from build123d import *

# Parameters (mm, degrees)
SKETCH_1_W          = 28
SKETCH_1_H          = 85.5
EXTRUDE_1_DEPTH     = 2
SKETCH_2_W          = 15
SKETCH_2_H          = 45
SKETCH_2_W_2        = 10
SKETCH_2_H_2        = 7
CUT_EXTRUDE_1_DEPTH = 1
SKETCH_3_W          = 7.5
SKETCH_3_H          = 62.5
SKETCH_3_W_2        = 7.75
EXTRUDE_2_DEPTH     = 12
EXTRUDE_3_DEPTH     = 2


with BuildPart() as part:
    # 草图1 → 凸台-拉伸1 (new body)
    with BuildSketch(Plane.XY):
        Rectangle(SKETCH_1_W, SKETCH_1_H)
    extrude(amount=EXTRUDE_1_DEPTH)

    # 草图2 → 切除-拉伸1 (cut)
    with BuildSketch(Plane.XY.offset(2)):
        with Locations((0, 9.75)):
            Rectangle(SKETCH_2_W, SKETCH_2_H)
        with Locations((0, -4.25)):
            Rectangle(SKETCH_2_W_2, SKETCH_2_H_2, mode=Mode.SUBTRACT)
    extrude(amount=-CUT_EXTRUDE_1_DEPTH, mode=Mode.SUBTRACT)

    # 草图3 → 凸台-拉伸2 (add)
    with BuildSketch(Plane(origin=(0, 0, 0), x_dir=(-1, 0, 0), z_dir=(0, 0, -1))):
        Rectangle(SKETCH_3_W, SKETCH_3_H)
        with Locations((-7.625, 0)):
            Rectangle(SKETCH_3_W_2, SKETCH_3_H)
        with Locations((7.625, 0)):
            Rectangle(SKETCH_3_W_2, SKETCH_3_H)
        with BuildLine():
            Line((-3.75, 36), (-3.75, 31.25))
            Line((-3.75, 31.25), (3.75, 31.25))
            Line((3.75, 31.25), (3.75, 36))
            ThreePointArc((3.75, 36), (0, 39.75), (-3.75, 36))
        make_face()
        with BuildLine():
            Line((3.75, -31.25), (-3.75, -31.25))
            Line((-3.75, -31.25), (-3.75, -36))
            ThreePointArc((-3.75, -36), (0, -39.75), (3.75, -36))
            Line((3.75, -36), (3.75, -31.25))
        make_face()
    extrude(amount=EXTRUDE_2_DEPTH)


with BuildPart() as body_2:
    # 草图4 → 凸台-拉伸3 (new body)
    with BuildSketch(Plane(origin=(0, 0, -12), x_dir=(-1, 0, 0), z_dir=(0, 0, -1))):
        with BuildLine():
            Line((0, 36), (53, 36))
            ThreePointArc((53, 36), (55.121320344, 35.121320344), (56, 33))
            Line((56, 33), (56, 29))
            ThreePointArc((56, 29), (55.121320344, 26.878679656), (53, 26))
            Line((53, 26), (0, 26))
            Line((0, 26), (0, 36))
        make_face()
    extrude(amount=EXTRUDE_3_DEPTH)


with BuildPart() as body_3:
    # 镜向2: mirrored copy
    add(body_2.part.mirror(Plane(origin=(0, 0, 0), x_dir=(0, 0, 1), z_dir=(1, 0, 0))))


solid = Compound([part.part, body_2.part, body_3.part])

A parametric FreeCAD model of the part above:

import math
import FreeCAD as App
import Part
import Sketcher

V = App.Vector


def add_polygon(sketch, points):
    """Adds a closed chain of lines whose ends are joined by coincident constraints."""
    first, n = sketch.GeometryCount, len(points)
    for a, b in zip(points, points[1:] + points[:1]):
        sketch.addGeometry(Part.LineSegment(App.Vector(*a, 0), App.Vector(*b, 0)), False)
    for i in range(n):
        sketch.addConstraint(Sketcher.Constraint("Coincident", first + i, 2, first + (i + 1) % n, 1))

doc = App.newDocument("Part")
params = doc.addObject("Spreadsheet::Sheet", "Params")
for row, (alias, value) in enumerate([
    ("sketch1_width", "28 mm"),
    ("sketch1_height", "85.5 mm"),
    ("pad1_length", "2 mm"),
    ("sketch2_width", "15 mm"),
    ("sketch2_width2", "10 mm"),
    ("sketch2_height", "45 mm"),
    ("sketch2_height2", "7 mm"),
    ("pocket1_length", "1 mm"),
    ("sketch3_radius", "3.75 mm"),
    ("sketch3_height", "62.5 mm"),
    ("pad2_length", "12 mm"),
    ("sketch4_radius", "3 mm"),
    ("sketch4_width", "53 mm"),
    ("sketch4_height", "10 mm"),
    ("pad3_length", "2 mm"),
], start=1):
    params.set(f"A{row}", alias)
    params.set(f"B{row}", "=" + value)
    params.setAlias(f"B{row}", alias)

body = doc.addObject("PartDesign::Body", "Body")

# Sketch on XY plane
sketch1 = body.newObject("Sketcher::SketchObject", "Sketch")
sketch1.AttachmentSupport = (doc.getObject("XY_Plane"), [""])
sketch1.MapMode = "FlatFace"
add_polygon(sketch1, [(-14, 43), (-14, -43), (14, -43), (14, 43)])  # lines 0-3
sketch1.addConstraint(Sketcher.Constraint("Vertical", 0))
sketch1.addConstraint(Sketcher.Constraint("Horizontal", 1))
sketch1.addConstraint(Sketcher.Constraint("Vertical", 2))
sketch1.addConstraint(Sketcher.Constraint("Horizontal", 3))
sketch1.addConstraint(Sketcher.Constraint("Symmetric", 0, 2, 2, 2, -1, 1))
sketch1.addConstraint(Sketcher.Constraint("DistanceX", 1, 1, 1, 2, 28.0))
sketch1.addConstraint(Sketcher.Constraint("DistanceY", 0, 2, 0, 1, 85.5))
sketch1.setExpression("Constraints[9]", "Params.sketch1_width")
sketch1.setExpression("Constraints[10]", "Params.sketch1_height")
pad1 = body.newObject("PartDesign::Pad", "Pad")
pad1.Profile = sketch1
pad1.setExpression("Length", "Params.pad1_length")

# Sketch on XY plane
sketch2 = body.newObject("Sketcher::SketchObject", "Sketch001")
sketch2.AttachmentSupport = (doc.getObject("XY_Plane"), [""])
sketch2.MapMode = "FlatFace"
sketch2.AttachmentOffset = App.Placement(V(0, 0, 2), App.Rotation())
add_polygon(sketch2, [(-8, 32), (-8, -13), (8, -13), (8, 32)])  # lines 0-3
add_polygon(sketch2, [(5, -8), (-5, -8), (-5, -1), (5, -1)])  # lines 4-7
sketch2.addConstraint(Sketcher.Constraint("Vertical", 0))
sketch2.addConstraint(Sketcher.Constraint("Horizontal", 1))
sketch2.addConstraint(Sketcher.Constraint("Vertical", 2))
sketch2.addConstraint(Sketcher.Constraint("Horizontal", 3))
sketch2.addConstraint(Sketcher.Constraint("Horizontal", 4))
sketch2.addConstraint(Sketcher.Constraint("Vertical", 5))
sketch2.addConstraint(Sketcher.Constraint("Horizontal", 6))
sketch2.addConstraint(Sketcher.Constraint("Vertical", 7))
sketch2.addConstraint(Sketcher.Constraint("DistanceX", 1, 1, 1, 2, 15.0))
sketch2.addConstraint(Sketcher.Constraint("DistanceX", 4, 2, 4, 1, 10.0))
sketch2.addConstraint(Sketcher.Constraint("DistanceY", 0, 2, 0, 1, 45.0))
sketch2.addConstraint(Sketcher.Constraint("DistanceY", 5, 1, 5, 2, 7.0))
sketch2.addConstraint(Sketcher.Constraint("DistanceX", 4, 2, -1, 1, 5.0))
sketch2.addConstraint(Sketcher.Constraint("DistanceY", 0, 2, 4, 2, 5.0))
sketch2.addConstraint(Sketcher.Constraint("DistanceX", 0, 2, -1, 1, 7.5))
sketch2.addConstraint(Sketcher.Constraint("DistanceY", 0, 2, -1, 1, 12.75))
sketch2.setExpression("Constraints[16]", "Params.sketch2_width")
sketch2.setExpression("Constraints[17]", "Params.sketch2_width2")
sketch2.setExpression("Constraints[18]", "Params.sketch2_height")
sketch2.setExpression("Constraints[19]", "Params.sketch2_height2")
pocket1 = body.newObject("PartDesign::Pocket", "Pocket")
pocket1.Profile = sketch2
pocket1.setExpression("Length", "Params.pocket1_length")

# Sketch on XY plane
sketch3 = body.newObject("Sketcher::SketchObject", "Sketch002")
sketch3.AttachmentSupport = (doc.getObject("XY_Plane"), [""])
sketch3.MapMode = "FlatFace"
sketch3.addGeometry(Part.LineSegment(V(11.5, 31.2, 0), V(11.5, -31.2, 0)), False)
sketch3.addGeometry(Part.LineSegment(V(11.5, -31.2, 0), V(3.8, -31.2, 0)), False)
sketch3.addGeometry(Part.LineSegment(V(3.8, -31.2, 0), V(3.8, -36, 0)), False)
sketch3.addGeometry(Part.ArcOfCircle(Part.Circle(V(0, -36, 0), V(0, 0, 1), 3.8), math.radians(180), math.radians(360)), False)
sketch3.addGeometry(Part.LineSegment(V(-3.8, -36, 0), V(-3.8, -31.2, 0)), False)
sketch3.addGeometry(Part.LineSegment(V(-3.8, -31.2, 0), V(-11.5, -31.2, 0)), False)
sketch3.addGeometry(Part.LineSegment(V(-11.5, -31.2, 0), V(-11.5, 31.2, 0)), False)
sketch3.addGeometry(Part.LineSegment(V(-11.5, 31.2, 0), V(-3.8, 31.2, 0)), False)
sketch3.addGeometry(Part.LineSegment(V(-3.8, 31.2, 0), V(-3.8, 36, 0)), False)
sketch3.addGeometry(Part.ArcOfCircle(Part.Circle(V(0, 36, 0), V(0, 0, 1), 3.8), math.radians(0), math.radians(180)), False)
sketch3.addGeometry(Part.LineSegment(V(3.8, 36, 0), V(3.8, 31.2, 0)), False)
sketch3.addGeometry(Part.LineSegment(V(3.8, 31.2, 0), V(11.5, 31.2, 0)), False)
sketch3.addConstraint(Sketcher.Constraint("Coincident", 0, 2, 1, 1))
sketch3.addConstraint(Sketcher.Constraint("Coincident", 1, 2, 2, 1))
sketch3.addConstraint(Sketcher.Constraint("Tangent", 2, 2, 3, 2))
sketch3.addConstraint(Sketcher.Constraint("Tangent", 3, 1, 4, 1))
sketch3.addConstraint(Sketcher.Constraint("Coincident", 4, 2, 5, 1))
sketch3.addConstraint(Sketcher.Constraint("Coincident", 5, 2, 6, 1))
sketch3.addConstraint(Sketcher.Constraint("Coincident", 6, 2, 7, 1))
sketch3.addConstraint(Sketcher.Constraint("Coincident", 7, 2, 8, 1))
sketch3.addConstraint(Sketcher.Constraint("Tangent", 8, 2, 9, 2))
sketch3.addConstraint(Sketcher.Constraint("Tangent", 9, 1, 10, 1))
sketch3.addConstraint(Sketcher.Constraint("Coincident", 10, 2, 11, 1))
sketch3.addConstraint(Sketcher.Constraint("Coincident", 11, 2, 0, 1))
sketch3.addConstraint(Sketcher.Constraint("Vertical", 0))
sketch3.addConstraint(Sketcher.Constraint("Horizontal", 1))
sketch3.addConstraint(Sketcher.Constraint("Vertical", 2))
sketch3.addConstraint(Sketcher.Constraint("Vertical", 4))
sketch3.addConstraint(Sketcher.Constraint("Horizontal", 5))
sketch3.addConstraint(Sketcher.Constraint("Vertical", 6))
sketch3.addConstraint(Sketcher.Constraint("Horizontal", 7))
sketch3.addConstraint(Sketcher.Constraint("Vertical", 8))
sketch3.addConstraint(Sketcher.Constraint("Vertical", 10))
sketch3.addConstraint(Sketcher.Constraint("Horizontal", 11))
sketch3.addConstraint(Sketcher.Constraint("Equal", 3, 9))
sketch3.addConstraint(Sketcher.Constraint("Symmetric", 3, 3, 9, 3, -1, 1))
sketch3.addConstraint(Sketcher.Constraint("Symmetric", 0, 2, 6, 2, -1, 1))
sketch3.addConstraint(Sketcher.Constraint("Symmetric", 1, 2, 4, 2, -2))
sketch3.addConstraint(Sketcher.Constraint("Horizontal", 7, 2, 10, 2))
sketch3.addConstraint(Sketcher.Constraint("Radius", 3, 3.75))
sketch3.addConstraint(Sketcher.Constraint("DistanceY", 0, 2, 0, 1, 62.5))
sketch3.addConstraint(Sketcher.Constraint("DistanceY", 3, 3, -1, 1, 36.0))
sketch3.addConstraint(Sketcher.Constraint("DistanceX", 6, 2, 0, 2, 23.0))
sketch3.setExpression("Constraints[27]", "Params.sketch3_radius")
sketch3.setExpression("Constraints[28]", "Params.sketch3_height")
pad2 = body.newObject("PartDesign::Pad", "Pad001")
pad2.Profile = sketch3
pad2.setExpression("Length", "Params.pad2_length")
pad2.Reversed = True
body2 = doc.addObject("PartDesign::Body", "Body001")

# Sketch on XY plane
sketch4 = body2.newObject("Sketcher::SketchObject", "Sketch003")
sketch4.AttachmentSupport = (doc.getObject("XY_Plane001"), [""])
sketch4.MapMode = "FlatFace"
sketch4.AttachmentOffset = App.Placement(V(0, 0, -12), App.Rotation())
sketch4.addGeometry(Part.LineSegment(V(-53, 36, 0), V(0, 36, 0)), False)
sketch4.addGeometry(Part.LineSegment(V(0, 36, 0), V(0, 26, 0)), False)
sketch4.addGeometry(Part.LineSegment(V(0, 26, 0), V(-53, 26, 0)), False)
sketch4.addGeometry(Part.ArcOfCircle(Part.Circle(V(-53, 29, 0), V(0, 0, 1), 3), math.radians(180), math.radians(270)), False)
sketch4.addGeometry(Part.LineSegment(V(-56, 29, 0), V(-56, 33, 0)), False)
sketch4.addGeometry(Part.ArcOfCircle(Part.Circle(V(-53, 33, 0), V(0, 0, 1), 3), math.radians(90), math.radians(180)), False)
sketch4.addConstraint(Sketcher.Constraint("Coincident", 0, 2, 1, 1))
sketch4.addConstraint(Sketcher.Constraint("Coincident", 1, 2, 2, 1))
sketch4.addConstraint(Sketcher.Constraint("Tangent", 2, 2, 3, 2))
sketch4.addConstraint(Sketcher.Constraint("Tangent", 3, 1, 4, 1))
sketch4.addConstraint(Sketcher.Constraint("Tangent", 4, 2, 5, 2))
sketch4.addConstraint(Sketcher.Constraint("Tangent", 5, 1, 0, 1))
sketch4.addConstraint(Sketcher.Constraint("Horizontal", 0))
sketch4.addConstraint(Sketcher.Constraint("Vertical", 1))
sketch4.addConstraint(Sketcher.Constraint("Horizontal", 2))
sketch4.addConstraint(Sketcher.Constraint("Vertical", 4))
sketch4.addConstraint(Sketcher.Constraint("Equal", 3, 5))
sketch4.addConstraint(Sketcher.Constraint("PointOnObject", 0, 2, -2))
sketch4.addConstraint(Sketcher.Constraint("Radius", 3, 3.0))
sketch4.addConstraint(Sketcher.Constraint("DistanceX", 0, 1, 0, 2, 53.0))
sketch4.addConstraint(Sketcher.Constraint("DistanceY", 1, 2, 1, 1, 10.0))
sketch4.addConstraint(Sketcher.Constraint("DistanceY", -1, 1, 3, 3, 29.0))
sketch4.setExpression("Constraints[12]", "Params.sketch4_radius")
sketch4.setExpression("Constraints[13]", "Params.sketch4_width")
sketch4.setExpression("Constraints[14]", "Params.sketch4_height")
pad3 = body2.newObject("PartDesign::Pad", "Pad002")
pad3.Profile = sketch4
pad3.setExpression("Length", "Params.pad3_length")
pad3.Reversed = True
body3 = doc.addObject("PartDesign::Body", "Body002")
doc.recompute()

mirroring = doc.addObject("Part::Mirroring", "Mirroring")
mirroring.Source = body2
mirroring.Base = V(0, 0, 0)
mirroring.Normal = V(1, 0, 0)
body3.BaseFeature = mirroring
doc.recompute()
mirroring.Visibility = False

doc.recompute()
